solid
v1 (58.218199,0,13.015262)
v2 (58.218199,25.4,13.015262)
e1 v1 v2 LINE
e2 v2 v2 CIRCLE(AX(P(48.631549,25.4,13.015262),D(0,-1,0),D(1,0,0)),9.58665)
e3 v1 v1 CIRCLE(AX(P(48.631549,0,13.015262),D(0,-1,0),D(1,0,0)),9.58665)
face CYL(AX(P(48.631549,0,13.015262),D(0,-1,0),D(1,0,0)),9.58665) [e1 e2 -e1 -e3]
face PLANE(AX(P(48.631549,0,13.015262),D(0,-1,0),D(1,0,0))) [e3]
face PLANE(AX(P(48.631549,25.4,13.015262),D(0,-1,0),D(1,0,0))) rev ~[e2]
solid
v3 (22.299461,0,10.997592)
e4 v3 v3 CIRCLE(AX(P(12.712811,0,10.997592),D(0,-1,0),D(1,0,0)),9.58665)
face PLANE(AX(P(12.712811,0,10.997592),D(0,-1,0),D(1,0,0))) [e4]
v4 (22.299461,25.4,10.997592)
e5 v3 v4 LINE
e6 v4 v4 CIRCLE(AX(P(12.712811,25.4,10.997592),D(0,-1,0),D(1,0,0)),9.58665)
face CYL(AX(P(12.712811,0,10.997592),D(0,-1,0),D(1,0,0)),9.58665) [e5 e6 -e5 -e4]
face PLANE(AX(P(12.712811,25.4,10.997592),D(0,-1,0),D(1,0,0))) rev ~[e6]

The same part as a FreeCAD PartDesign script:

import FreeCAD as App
import Part
import Sketcher
from FreeCAD import Vector

doc = App.newDocument("Part")
params = doc.addObject("Spreadsheet::Sheet", "Params")
for row, (alias, value) in enumerate([
    ("pad1_length", "1 in"),
], start=1):
    params.set(f"A{row}", alias)
    params.set(f"B{row}", "=" + value)
    params.setAlias(f"B{row}", alias)

body = doc.addObject("PartDesign::Body", "Body")
body.AllowCompound = True

# Sketch on XZ plane
sketch1 = doc.addObject("Sketcher::SketchObject", "Sketch")
body.addObject(sketch1)
sketch1.AttachmentSupport = (doc.XZ_Plane, [""])
sketch1.MapMode = "FlatFace"
sketch1.addGeometry([
    Part.Circle(Vector(13, 11, 0), Vector(0, 0, 1), 10),
    Part.Circle(Vector(49, 13, 0), Vector(0, 0, 1), 10),
], False)
sketch1.addConstraint([
    Sketcher.Constraint("Equal", 0, 1),
    Sketcher.Constraint("Diameter", 0, 19.1733),
    Sketcher.Constraint("DistanceX", -1, 1, 0, 3, 12.712811),
    Sketcher.Constraint("DistanceY", -1, 1, 0, 3, 10.997592),
    Sketcher.Constraint("DistanceX", -1, 1, 1, 3, 48.631549),
    Sketcher.Constraint("DistanceY", 0, 3, 1, 3, 2.01767),
])
pad1 = doc.addObject("PartDesign::Pad", "Pad")
body.addObject(pad1)
pad1.Profile = sketch1
pad1.setExpression("Length", "Params.pad1_length")
pad1.Reversed = True

doc.recompute()
